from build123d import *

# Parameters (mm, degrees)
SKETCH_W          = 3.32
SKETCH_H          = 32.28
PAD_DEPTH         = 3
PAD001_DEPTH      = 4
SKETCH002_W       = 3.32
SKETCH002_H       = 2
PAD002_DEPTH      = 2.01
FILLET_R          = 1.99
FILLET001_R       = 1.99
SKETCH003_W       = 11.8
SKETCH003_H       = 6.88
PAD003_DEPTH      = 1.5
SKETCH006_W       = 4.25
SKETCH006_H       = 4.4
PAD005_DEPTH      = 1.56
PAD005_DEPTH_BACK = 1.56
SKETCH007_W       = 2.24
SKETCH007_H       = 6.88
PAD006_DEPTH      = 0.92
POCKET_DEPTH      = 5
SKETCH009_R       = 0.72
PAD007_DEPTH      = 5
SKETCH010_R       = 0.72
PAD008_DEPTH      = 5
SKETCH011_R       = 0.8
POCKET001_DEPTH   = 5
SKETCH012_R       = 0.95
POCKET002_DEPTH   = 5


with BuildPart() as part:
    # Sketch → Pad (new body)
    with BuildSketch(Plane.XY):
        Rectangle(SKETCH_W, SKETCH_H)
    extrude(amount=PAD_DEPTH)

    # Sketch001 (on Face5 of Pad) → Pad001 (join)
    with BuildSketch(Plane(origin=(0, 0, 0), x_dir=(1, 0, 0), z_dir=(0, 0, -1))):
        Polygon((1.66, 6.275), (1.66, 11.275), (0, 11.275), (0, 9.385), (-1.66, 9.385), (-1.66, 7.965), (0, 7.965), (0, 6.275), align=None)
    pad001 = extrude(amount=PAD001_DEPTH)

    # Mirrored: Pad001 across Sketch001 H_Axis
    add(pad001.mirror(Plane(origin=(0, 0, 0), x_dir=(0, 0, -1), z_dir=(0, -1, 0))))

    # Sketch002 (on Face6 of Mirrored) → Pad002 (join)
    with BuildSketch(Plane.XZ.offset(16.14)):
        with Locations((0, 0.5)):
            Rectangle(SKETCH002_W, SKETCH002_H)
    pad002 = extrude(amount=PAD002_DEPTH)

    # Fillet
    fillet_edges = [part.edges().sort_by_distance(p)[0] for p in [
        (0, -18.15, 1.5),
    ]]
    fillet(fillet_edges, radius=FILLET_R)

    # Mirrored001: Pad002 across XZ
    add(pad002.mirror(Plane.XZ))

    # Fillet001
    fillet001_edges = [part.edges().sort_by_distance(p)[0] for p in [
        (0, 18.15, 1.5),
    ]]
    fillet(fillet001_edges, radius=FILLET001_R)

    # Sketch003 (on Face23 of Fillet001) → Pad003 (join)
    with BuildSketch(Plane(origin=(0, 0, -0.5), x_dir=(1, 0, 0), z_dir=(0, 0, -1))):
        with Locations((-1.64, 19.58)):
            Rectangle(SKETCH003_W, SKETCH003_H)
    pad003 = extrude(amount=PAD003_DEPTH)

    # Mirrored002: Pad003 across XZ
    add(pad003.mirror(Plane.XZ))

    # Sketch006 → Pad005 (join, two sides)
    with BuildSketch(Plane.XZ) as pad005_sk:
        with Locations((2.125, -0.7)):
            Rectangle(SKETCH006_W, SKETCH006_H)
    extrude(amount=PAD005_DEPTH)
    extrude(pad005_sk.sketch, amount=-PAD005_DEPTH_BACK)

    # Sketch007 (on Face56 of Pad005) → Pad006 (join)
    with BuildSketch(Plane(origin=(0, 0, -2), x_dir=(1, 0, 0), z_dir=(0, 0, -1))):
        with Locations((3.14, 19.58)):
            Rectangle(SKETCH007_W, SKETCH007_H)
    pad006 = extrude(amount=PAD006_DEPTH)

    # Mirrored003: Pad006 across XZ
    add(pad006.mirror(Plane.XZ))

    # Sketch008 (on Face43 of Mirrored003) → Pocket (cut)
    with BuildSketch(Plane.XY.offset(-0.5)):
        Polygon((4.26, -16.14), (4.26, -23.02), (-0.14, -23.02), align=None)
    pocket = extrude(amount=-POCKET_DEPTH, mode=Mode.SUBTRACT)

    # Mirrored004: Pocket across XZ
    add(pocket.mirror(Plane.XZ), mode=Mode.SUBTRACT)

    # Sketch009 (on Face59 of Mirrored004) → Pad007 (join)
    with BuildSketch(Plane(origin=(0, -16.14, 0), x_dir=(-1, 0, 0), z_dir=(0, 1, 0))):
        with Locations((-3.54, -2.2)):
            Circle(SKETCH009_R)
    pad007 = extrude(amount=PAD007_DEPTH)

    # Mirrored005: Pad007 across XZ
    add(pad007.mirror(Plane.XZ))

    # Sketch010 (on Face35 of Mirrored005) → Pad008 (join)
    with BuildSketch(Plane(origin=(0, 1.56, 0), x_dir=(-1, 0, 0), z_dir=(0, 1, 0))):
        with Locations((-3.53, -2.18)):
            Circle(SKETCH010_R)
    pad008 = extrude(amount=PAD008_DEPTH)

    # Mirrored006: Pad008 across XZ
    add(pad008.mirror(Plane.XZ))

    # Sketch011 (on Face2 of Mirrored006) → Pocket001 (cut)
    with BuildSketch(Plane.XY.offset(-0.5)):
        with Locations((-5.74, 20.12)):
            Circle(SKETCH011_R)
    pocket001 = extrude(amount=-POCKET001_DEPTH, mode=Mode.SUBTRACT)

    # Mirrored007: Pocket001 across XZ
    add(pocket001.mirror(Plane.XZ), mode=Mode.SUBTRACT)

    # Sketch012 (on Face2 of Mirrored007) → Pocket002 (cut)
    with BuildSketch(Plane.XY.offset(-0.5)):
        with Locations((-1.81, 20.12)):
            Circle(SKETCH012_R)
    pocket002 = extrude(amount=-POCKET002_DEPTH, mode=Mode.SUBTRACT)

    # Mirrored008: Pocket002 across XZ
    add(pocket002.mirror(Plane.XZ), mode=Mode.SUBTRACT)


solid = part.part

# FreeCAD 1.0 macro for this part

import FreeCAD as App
import Part
import Sketcher

V = App.Vector


def edges_at(feature, points):
    """Names of the edges that pass closest to the given points."""
    edges = feature.Shape.Edges
    near = lambda p: min(range(len(edges)), key=lambda i: edges[i].distToShape(Part.Vertex(*p))[0])
    return sorted({f"Edge{near(p) + 1}" for p in points})


def add_polygon(sketch, points):
    """Adds a closed chain of lines whose ends are joined by coincident constraints."""
    first, n = sketch.GeometryCount, len(points)
    for a, b in zip(points, points[1:] + points[:1]):
        sketch.addGeometry(Part.LineSegment(App.Vector(*a, 0), App.Vector(*b, 0)), False)
    for i in range(n):
        sketch.addConstraint(Sketcher.Constraint("Coincident", first + i, 2, first + (i + 1) % n, 1))

doc = App.newDocument("Part")
body = doc.addObject("PartDesign::Body", "Body")

sketch1 = body.newObject("Sketcher::SketchObject", "Sketch")
sketch1.AttachmentSupport = (doc.getObject("XY_Plane"), [""])
sketch1.MapMode = "FlatFace"
add_polygon(sketch1, [(-1.7, 16.1), (-1.7, -16.1), (1.7, -16.1), (1.7, 16.1)])
sketch1.addConstraint([
    Sketcher.Constraint("Vertical", 0),
    Sketcher.Constraint("Horizontal", 1),
    Sketcher.Constraint("Vertical", 2),
    Sketcher.Constraint("Horizontal", 3),
    Sketcher.Constraint("Symmetric", 0, 2, 2, 2, -1, 1),
    Sketcher.Constraint("DistanceX", 1, 1, 1, 2, 3.32),
    Sketcher.Constraint("DistanceY", 0, 2, 0, 1, 32.28),
])
pad1 = body.newObject("PartDesign::Pad", "Pad")
pad1.Profile = sketch1
pad1.Length = 3

sketch2 = body.newObject("Sketcher::SketchObject", "Sketch001")
sketch2.AttachmentSupport = (doc.getObject("XY_Plane"), [""])
sketch2.MapMode = "FlatFace"
add_polygon(sketch2, [(1.7, -6.3), (1.7, -11.3), (0, -11.3), (0, -9.4), (-1.7, -9.4), (-1.7, -8), (0, -8), (0, -6.3)])
sketch2.addConstraint([
    Sketcher.Constraint("Vertical", 0),
    Sketcher.Constraint("Horizontal", 1),
    Sketcher.Constraint("Vertical", 2),
    Sketcher.Constraint("Horizontal", 3),
    Sketcher.Constraint("Vertical", 4),
    Sketcher.Constraint("Horizontal", 5),
    Sketcher.Constraint("Vertical", 6),
    Sketcher.Constraint("Horizontal", 7),
    Sketcher.Constraint("PointOnObject", 1, 2, -2),
    Sketcher.Constraint("PointOnObject", 5, 2, -2),
    Sketcher.Constraint("Equal", 1, 3),
    Sketcher.Constraint("DistanceY", 0, 2, 0, 1, 5.0),
    Sketcher.Constraint("DistanceX", 1, 2, 1, 1, 1.66),
    Sketcher.Constraint("DistanceY", 2, 1, 2, 2, 1.89),
    Sketcher.Constraint("DistanceY", 4, 1, 4, 2, 1.42),
    Sketcher.Constraint("DistanceY", 0, 2, -1, 1, 11.275),
])
pad2 = body.newObject("PartDesign::Pad", "Pad001")
pad2.Profile = sketch2
pad2.Length = 4
pad2.Reversed = True
doc.recompute()

mirrored = body.newObject("PartDesign::Mirrored", "Mirrored")
mirrored.Originals = [pad2]
mirrored.MirrorPlane = (doc.getObject("XZ_Plane"), [""])
body.Tip = mirrored

sketch3 = body.newObject("Sketcher::SketchObject", "Sketch002")
sketch3.AttachmentSupport = (doc.getObject("XZ_Plane"), [""])
sketch3.MapMode = "FlatFace"
sketch3.AttachmentOffset = App.Placement(V(0, 0, 16.14), App.Rotation())
add_polygon(sketch3, [(-1.7, 1.5), (-1.7, -0.5), (1.7, -0.5), (1.7, 1.5)])
sketch3.addConstraint([
    Sketcher.Constraint("Vertical", 0),
    Sketcher.Constraint("Horizontal", 1),
    Sketcher.Constraint("Vertical", 2),
    Sketcher.Constraint("Horizontal", 3),
    Sketcher.Constraint("DistanceY", 0, 2, 0, 1, 2.0),
    Sketcher.Constraint("DistanceX", 1, 1, 1, 2, 3.32),
    Sketcher.Constraint("DistanceY", 0, 2, -1, 1, 0.5),
    Sketcher.Constraint("DistanceX", 0, 2, -1, 1, 1.66),
])
pad3 = body.newObject("PartDesign::Pad", "Pad002")
pad3.Profile = sketch3
pad3.Length = 2.01
doc.recompute()

fillet = body.newObject("PartDesign::Fillet", "Fillet")
fillet.Base = (pad3, edges_at(pad3, [(0, -18.15, 1.5)]))
fillet.Radius = 1.99
doc.recompute()

mirrored2 = body.newObject("PartDesign::Mirrored", "Mirrored001")
mirrored2.Originals = [pad3]
mirrored2.MirrorPlane = (doc.getObject("XZ_Plane"), [""])
body.Tip = mirrored2
doc.recompute()

fillet2 = body.newObject("PartDesign::Fillet", "Fillet001")
fillet2.Base = (mirrored2, edges_at(mirrored2, [(0, 18.15, 1.5)]))
fillet2.Radius = 1.99

sketch4 = body.newObject("Sketcher::SketchObject", "Sketch003")
sketch4.AttachmentSupport = (doc.getObject("XY_Plane"), [""])
sketch4.MapMode = "FlatFace"
sketch4.AttachmentOffset = App.Placement(V(0, 0, -0.5), App.Rotation())
add_polygon(sketch4, [(-8, -23), (-8, -16), (4, -16), (4, -23)])
sketch4.addConstraint([
    Sketcher.Constraint("Vertical", 0),
    Sketcher.Constraint("Horizontal", 1),
    Sketcher.Constraint("Vertical", 2),
    Sketcher.Constraint("Horizontal", 3),
    Sketcher.Constraint("DistanceX", 1, 1, 1, 2, 11.8),
    Sketcher.Constraint("DistanceY", 0, 1, 0, 2, 6.88),
    Sketcher.Constraint("DistanceX", 0, 2, -1, 1, 7.54),
    Sketcher.Constraint("DistanceY", 0, 2, -1, 1, 16.14),
])
pad4 = body.newObject("PartDesign::Pad", "Pad003")
pad4.Profile = sketch4
pad4.Length = 1.5
pad4.Reversed = True
doc.recompute()

mirrored3 = body.newObject("PartDesign::Mirrored", "Mirrored002")
mirrored3.Originals = [pad4]
mirrored3.MirrorPlane = (doc.getObject("XZ_Plane"), [""])
body.Tip = mirrored3

sketch5 = body.newObject("Sketcher::SketchObject", "Sketch004")
sketch5.AttachmentSupport = (doc.getObject("XZ_Plane"), [""])
sketch5.MapMode = "FlatFace"
add_polygon(sketch5, [(0, 1.5), (0, -2.9), (4.2, -2.9), (4.2, 1.5)])
sketch5.addConstraint([
    Sketcher.Constraint("Vertical", 0),
    Sketcher.Constraint("Horizontal", 1),
    Sketcher.Constraint("Vertical", 2),
    Sketcher.Constraint("Horizontal", 3),
    Sketcher.Constraint("PointOnObject", 0, 2, -2),
    Sketcher.Constraint("DistanceY", 0, 2, 0, 1, 4.4),
    Sketcher.Constraint("DistanceX", 1, 1, 1, 2, 4.25),
    Sketcher.Constraint("DistanceY", 0, 2, -1, 1, 2.9),
])
pad5 = body.newObject("PartDesign::Pad", "Pad004")
pad5.Profile = sketch5
pad5.Type = "TwoLengths"
pad5.Length = 1.56
pad5.Length2 = 1.56

sketch6 = body.newObject("Sketcher::SketchObject", "Sketch005")
sketch6.AttachmentSupport = (doc.getObject("XY_Plane"), [""])
sketch6.MapMode = "FlatFace"
sketch6.AttachmentOffset = App.Placement(V(0, 0, -2), App.Rotation())
add_polygon(sketch6, [(2, -23), (2, -16.1), (4.3, -16.1), (4.3, -23)])
sketch6.addConstraint([
    Sketcher.Constraint("Vertical", 0),
    Sketcher.Constraint("Horizontal", 1),
    Sketcher.Constraint("Vertical", 2),
    Sketcher.Constraint("Horizontal", 3),
    Sketcher.Constraint("DistanceX", 1, 1, 1, 2, 2.24),
    Sketcher.Constraint("DistanceY", 0, 1, 0, 2, 6.88),
    Sketcher.Constraint("DistanceX", -1, 1, 0, 2, 2.02),
    Sketcher.Constraint("DistanceY", 0, 2, -1, 1, 16.14),
])
pad6 = body.newObject("PartDesign::Pad", "Pad005")
pad6.Profile = sketch6
pad6.Length = 0.92
pad6.Reversed = True
doc.recompute()

mirrored4 = body.newObject("PartDesign::Mirrored", "Mirrored003")
mirrored4.Originals = [pad6]
mirrored4.MirrorPlane = (doc.getObject("XZ_Plane"), [""])
body.Tip = mirrored4

sketch7 = body.newObject("Sketcher::SketchObject", "Sketch006")
sketch7.AttachmentSupport = (doc.getObject("XY_Plane"), [""])
sketch7.MapMode = "FlatFace"
sketch7.AttachmentOffset = App.Placement(V(0, 0, -0.5), App.Rotation())
add_polygon(sketch7, [(4.3, -23), (4.3, -16.1), (-0.1, -23)])
sketch7.addConstraint([
    Sketcher.Constraint("Vertical", 0),
    Sketcher.Constraint("Horizontal", 2),
    Sketcher.Constraint("DistanceX", 2, 1, 2, 2, 4.4),
    Sketcher.Constraint("DistanceY", 0, 1, 0, 2, 6.88),
    Sketcher.Constraint("DistanceX", -1, 1, 0, 2, 4.26),
    Sketcher.Constraint("DistanceY", 0, 2, -1, 1, 16.14),
])
pocket1 = body.newObject("PartDesign::Pocket", "Pocket")
pocket1.Profile = sketch7
pocket1.Length = 5
doc.recompute()

mirrored5 = body.newObject("PartDesign::Mirrored", "Mirrored004")
mirrored5.Originals = [pocket1]
mirrored5.MirrorPlane = (doc.getObject("XZ_Plane"), [""])
body.Tip = mirrored5

sketch8 = body.newObject("Sketcher::SketchObject", "Sketch007")
sketch8.AttachmentSupport = (doc.getObject("XZ_Plane"), [""])
sketch8.MapMode = "FlatFace"
sketch8.AttachmentOffset = App.Placement(V(0, 0, 16.14), App.Rotation())
sketch8.addGeometry(Part.Circle(V(3.5, -2.2, 0), V(0, 0, 1), 0.7), False)
sketch8.addConstraint([
    Sketcher.Constraint("Diameter", 0, 1.44),
    Sketcher.Constraint("DistanceY", 0, 3, -1, 1, 2.2),
    Sketcher.Constraint("DistanceX", -1, 1, 0, 3, 3.54),
])
pad7 = body.newObject("PartDesign::Pad", "Pad006")
pad7.Profile = sketch8
pad7.Length = 5
pad7.Reversed = True
doc.recompute()

mirrored6 = body.newObject("PartDesign::Mirrored", "Mirrored005")
mirrored6.Originals = [pad7]
mirrored6.MirrorPlane = (doc.getObject("XZ_Plane"), [""])
body.Tip = mirrored6

sketch9 = body.newObject("Sketcher::SketchObject", "Sketch008")
sketch9.AttachmentSupport = (doc.getObject("XZ_Plane"), [""])
sketch9.MapMode = "FlatFace"
sketch9.AttachmentOffset = App.Placement(V(0, 0, -1.56), App.Rotation())
sketch9.addGeometry(Part.Circle(V(3.5, -2.2, 0), V(0, 0, 1), 0.7), False)
sketch9.addConstraint([
    Sketcher.Constraint("Diameter", 0, 1.44),
    Sketcher.Constraint("DistanceX", -1, 1, 0, 3, 3.53),
    Sketcher.Constraint("DistanceY", 0, 3, -1, 1, 2.18),
])
pad8 = body.newObject("PartDesign::Pad", "Pad007")
pad8.Profile = sketch9
pad8.Length = 5
pad8.Reversed = True
doc.recompute()

mirrored7 = body.newObject("PartDesign::Mirrored", "Mirrored006")
mirrored7.Originals = [pad8]
mirrored7.MirrorPlane = (doc.getObject("XZ_Plane"), [""])
body.Tip = mirrored7

sketch10 = body.newObject("Sketcher::SketchObject", "Sketch009")
sketch10.AttachmentSupport = (doc.getObject("XY_Plane"), [""])
sketch10.MapMode = "FlatFace"
sketch10.AttachmentOffset = App.Placement(V(0, 0, -0.5), App.Rotation())
sketch10.addGeometry(Part.Circle(V(-5.7, 20.1, 0), V(0, 0, 1), 0.8), False)
sketch10.addConstraint([
    Sketcher.Constraint("Diameter", 0, 1.6),
    Sketcher.Constraint("DistanceX", 0, 3, -1, 1, 5.74),
    Sketcher.Constraint("DistanceY", -1, 1, 0, 3, 20.12),
])
pocket2 = body.newObject("PartDesign::Pocket", "Pocket001")
pocket2.Profile = sketch10
pocket2.Length = 5
doc.recompute()

mirrored8 = body.newObject("PartDesign::Mirrored", "Mirrored007")
mirrored8.Originals = [pocket2]
mirrored8.MirrorPlane = (doc.getObject("XZ_Plane"), [""])
body.Tip = mirrored8

sketch11 = body.newObject("Sketcher::SketchObject", "Sketch010")
sketch11.AttachmentSupport = (doc.getObject("XY_Plane"), [""])
sketch11.MapMode = "FlatFace"
sketch11.AttachmentOffset = App.Placement(V(0, 0, -0.5), App.Rotation())
sketch11.addGeometry(Part.Circle(V(-1.8, 20.1, 0), V(0, 0, 1), 0.9), False)
sketch11.addConstraint([
    Sketcher.Constraint("Diameter", 0, 1.9),
    Sketcher.Constraint("DistanceX", 0, 3, -1, 1, 1.81),
    Sketcher.Constraint("DistanceY", -1, 1, 0, 3, 20.12),
])
pocket3 = body.newObject("PartDesign::Pocket", "Pocket002")
pocket3.Profile = sketch11
pocket3.Length = 5
doc.recompute()

mirrored9 = body.newObject("PartDesign::Mirrored", "Mirrored008")
mirrored9.Originals = [pocket3]
mirrored9.MirrorPlane = (doc.getObject("XZ_Plane"), [""])
body.Tip = mirrored9

doc.recompute()
